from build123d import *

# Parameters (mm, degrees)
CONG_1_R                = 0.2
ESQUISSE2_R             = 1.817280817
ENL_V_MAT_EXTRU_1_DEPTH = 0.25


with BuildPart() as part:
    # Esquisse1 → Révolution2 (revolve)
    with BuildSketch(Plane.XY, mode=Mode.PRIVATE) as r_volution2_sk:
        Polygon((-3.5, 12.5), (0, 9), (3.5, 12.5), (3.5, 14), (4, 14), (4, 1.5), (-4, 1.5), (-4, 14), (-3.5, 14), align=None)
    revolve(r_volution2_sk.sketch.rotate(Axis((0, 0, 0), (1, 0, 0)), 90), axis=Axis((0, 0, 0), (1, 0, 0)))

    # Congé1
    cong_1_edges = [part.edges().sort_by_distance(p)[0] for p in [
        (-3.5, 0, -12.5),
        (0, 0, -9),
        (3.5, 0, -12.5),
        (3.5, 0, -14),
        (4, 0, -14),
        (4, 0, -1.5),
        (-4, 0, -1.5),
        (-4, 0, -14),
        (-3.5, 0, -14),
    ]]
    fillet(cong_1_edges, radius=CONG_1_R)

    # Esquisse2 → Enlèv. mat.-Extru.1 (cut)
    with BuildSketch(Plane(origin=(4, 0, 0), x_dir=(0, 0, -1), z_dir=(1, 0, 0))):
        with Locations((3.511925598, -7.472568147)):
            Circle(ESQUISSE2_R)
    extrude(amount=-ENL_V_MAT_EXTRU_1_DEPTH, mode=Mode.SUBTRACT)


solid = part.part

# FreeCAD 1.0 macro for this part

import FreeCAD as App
import Part
import Sketcher
Q = App.Units.Quantity


def edges_at(feature, points):
    """Names of the edges that pass closest to the given points."""
    edges = feature.Shape.Edges
    near = lambda p: min(range(len(edges)), key=lambda i: edges[i].distToShape(Part.Vertex(*p))[0])
    return sorted({f"Edge{near(p) + 1}" for p in points})


def add_polygon(sketch, points):
    """Adds a closed chain of lines whose ends are joined by coincident constraints."""
    first, n = sketch.GeometryCount, len(points)
    for a, b in zip(points, points[1:] + points[:1]):
        sketch.addGeometry(Part.LineSegment(App.Vector(*a, 0), App.Vector(*b, 0)), False)
    for i in range(n):
        sketch.addConstraint(Sketcher.Constraint("Coincident", first + i, 2, first + (i + 1) % n, 1))

doc = App.newDocument("Part")
params = doc.addObject("Spreadsheet::Sheet", "Params")
for row, (alias, value) in enumerate([
    ("sketch1_width", "8 mm"),
    ("sketch1_width2", "0.5 mm"),
    ("sketch1_height", "1.5 mm"),
    ("sketch1_height2", "12.5 mm"),
    ("revolution_angle", "360 deg"),
    ("fillet_radius", "0.2 mm"),
    ("pocket1_length", "0.25 mm"),
], start=1):
    params.set(f"A{row}", alias)
    params.set(f"B{row}", "=" + value)
    params.setAlias(f"B{row}", alias)

body = doc.addObject("PartDesign::Body", "Body")

# Sketch on XY plane
sketch1 = body.newObject("Sketcher::SketchObject", "Sketch")
sketch1.AttachmentSupport = (doc.getObject("XY_Plane"), [""])
sketch1.MapMode = "FlatFace"
add_polygon(sketch1, [(0, 9), (-3.5, 12.5), (-3.5, 14), (-4, 14), (-4, 1.5), (4, 1.5), (4, 14), (3.5, 14), (3.5, 12.5)])  # lines 0-8
sketch1.addConstraint([
    Sketcher.Constraint("Vertical", 1),
    Sketcher.Constraint("Horizontal", 2),
    Sketcher.Constraint("Vertical", 3),
    Sketcher.Constraint("Horizontal", 4),
    Sketcher.Constraint("Vertical", 5),
    Sketcher.Constraint("Horizontal", 6),
    Sketcher.Constraint("Vertical", 7),
    Sketcher.Constraint("Symmetric", 2, 2, 5, 2, -2),
    Sketcher.Constraint("Symmetric", 0, 2, 7, 2, -2),
    Sketcher.Constraint("PointOnObject", 8, 2, -2),
    Sketcher.Constraint("Perpendicular", 0, 8),
    Sketcher.Constraint("DistanceX", 4, 1, 4, 2, Q("8 mm")),
    Sketcher.Constraint("DistanceX", 2, 2, 2, 1, Q("0.5 mm")),
    Sketcher.Constraint("DistanceY", 1, 1, 1, 2, Q("1.5 mm")),
    Sketcher.Constraint("DistanceY", 3, 2, 3, 1, Q("12.5 mm")),
    Sketcher.Constraint("DistanceY", -1, 1, 1, 2, Q("14 mm")),
])
sketch1.setExpression("Constraints[20]", "Params.sketch1_width")
sketch1.setExpression("Constraints[21]", "Params.sketch1_width2")
sketch1.setExpression("Constraints[22]", "Params.sketch1_height")
sketch1.setExpression("Constraints[23]", "Params.sketch1_height2")
revolution = body.newObject("PartDesign::Revolution", "Revolution")
revolution.Profile = sketch1
revolution.ReferenceAxis = (sketch1, ["H_Axis"])
revolution.setExpression("Angle", "Params.revolution_angle")
doc.recompute()

fillet = body.newObject("PartDesign::Fillet", "Fillet")
fillet.Base = (revolution, edges_at(revolution, [
    (-3.5, 0, -12.5),
    (0, 0, -9),
    (3.5, 0, -12.5),
    (3.5, 0, -14),
    (4, 0, -14),
    (4, 0, -1.5),
    (-4, 0, -1.5),
    (-4, 0, -14),
    (-3.5, 0, -14),
]))
fillet.setExpression("Radius", "Params.fillet_radius")

# Sketch on YZ plane
sketch2 = body.newObject("Sketcher::SketchObject", "Sketch001")
sketch2.AttachmentSupport = (doc.getObject("YZ_Plane"), [""])
sketch2.MapMode = "FlatFace"
sketch2.AttachmentOffset = App.Placement(App.Vector(0, 0, 4), App.Rotation())
sketch2.addGeometry(Part.Circle(App.Vector(-7.472568, -3.511926, 0), App.Vector(0, 0, 1), 1.817281), False)
sketch2.addConstraint([
    Sketcher.Constraint("Diameter", 0, Q("3.634562 mm")),
    Sketcher.Constraint("DistanceX", 0, 3, -1, 1, Q("7.472568 mm")),
    Sketcher.Constraint("DistanceY", 0, 3, -1, 1, Q("3.511926 mm")),
])
pocket1 = body.newObject("PartDesign::Pocket", "Pocket")
pocket1.Profile = sketch2
pocket1.setExpression("Length", "Params.pocket1_length")

doc.recompute()
